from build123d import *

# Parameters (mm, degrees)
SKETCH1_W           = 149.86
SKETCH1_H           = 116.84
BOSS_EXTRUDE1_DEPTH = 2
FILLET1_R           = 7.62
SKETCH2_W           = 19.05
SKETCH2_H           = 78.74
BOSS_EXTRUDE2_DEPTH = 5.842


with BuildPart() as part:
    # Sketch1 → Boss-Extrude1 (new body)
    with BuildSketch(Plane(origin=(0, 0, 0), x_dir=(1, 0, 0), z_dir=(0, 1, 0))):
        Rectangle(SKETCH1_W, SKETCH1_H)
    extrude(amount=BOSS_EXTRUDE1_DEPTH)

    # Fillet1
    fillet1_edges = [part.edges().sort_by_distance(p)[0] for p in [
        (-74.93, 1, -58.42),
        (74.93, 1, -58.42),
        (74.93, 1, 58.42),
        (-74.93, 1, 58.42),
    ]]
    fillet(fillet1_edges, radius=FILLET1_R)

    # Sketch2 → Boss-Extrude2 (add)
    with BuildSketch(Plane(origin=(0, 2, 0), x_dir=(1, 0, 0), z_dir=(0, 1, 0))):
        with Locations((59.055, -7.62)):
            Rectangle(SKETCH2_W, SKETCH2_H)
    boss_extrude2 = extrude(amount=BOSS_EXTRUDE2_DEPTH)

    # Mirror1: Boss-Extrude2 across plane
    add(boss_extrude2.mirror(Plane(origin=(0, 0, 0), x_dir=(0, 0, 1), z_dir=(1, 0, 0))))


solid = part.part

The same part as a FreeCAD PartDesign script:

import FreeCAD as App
import Part
import Sketcher
Q = App.Units.Quantity


def edges_at(feature, points):
    """Names of the edges that pass closest to the given points."""
    edges = feature.Shape.Edges
    near = lambda p: min(range(len(edges)), key=lambda i: edges[i].distToShape(Part.Vertex(*p))[0])
    return sorted({f"Edge{near(p) + 1}" for p in points})

doc = App.newDocument("Part")
params = doc.addObject("Spreadsheet::Sheet", "Params")
for row, (alias, value) in enumerate([
    ("sketch1_width", "5.9 in"),
    ("sketch1_height", "4.6 in"),
    ("pad1_length", "2 mm"),
    ("fillet_radius", "0.3 in"),
    ("sketch2_height", "3.1 in"),
    ("sketch2_width", "0.75 in"),
    ("pad2_length", "0.23 in"),
], start=1):
    params.set(f"A{row}", alias)
    params.set(f"B{row}", "=" + value)
    params.setAlias(f"B{row}", alias)

body = doc.addObject("PartDesign::Body", "Body")

# Sketch on XZ plane
sketch1 = body.newObject("Sketcher::SketchObject", "Sketch")
sketch1.AttachmentSupport = (doc.getObject("XZ_Plane"), [""])
sketch1.MapMode = "FlatFace"
sketch1.addGeometry(Part.LineSegment(App.Vector(-75, -58, 0), App.Vector(-75, 58, 0)), False)
sketch1.addGeometry(Part.LineSegment(App.Vector(-75, 58, 0), App.Vector(75, 58, 0)), False)
sketch1.addGeometry(Part.LineSegment(App.Vector(75, 58, 0), App.Vector(75, -58, 0)), False)
sketch1.addGeometry(Part.LineSegment(App.Vector(75, -58, 0), App.Vector(-75, -58, 0)), False)
sketch1.addConstraint(Sketcher.Constraint("Coincident", 0, 2, 1, 1))
sketch1.addConstraint(Sketcher.Constraint("Coincident", 1, 2, 2, 1))
sketch1.addConstraint(Sketcher.Constraint("Coincident", 2, 2, 3, 1))
sketch1.addConstraint(Sketcher.Constraint("Coincident", 3, 2, 0, 1))
sketch1.addConstraint(Sketcher.Constraint("Vertical", 0))
sketch1.addConstraint(Sketcher.Constraint("Horizontal", 1))
sketch1.addConstraint(Sketcher.Constraint("Vertical", 2))
sketch1.addConstraint(Sketcher.Constraint("Horizontal", 3))
sketch1.addConstraint(Sketcher.Constraint("Symmetric", 0, 2, 2, 2, -1, 1))
sketch1.addConstraint(Sketcher.Constraint("DistanceX", 1, 1, 1, 2, Q("5.9 in")))
sketch1.addConstraint(Sketcher.Constraint("DistanceY", 0, 1, 0, 2, Q("4.6 in")))
sketch1.setExpression("Constraints[9]", "Params.sketch1_width")
sketch1.setExpression("Constraints[10]", "Params.sketch1_height")
pad1 = body.newObject("PartDesign::Pad", "Pad")
pad1.Profile = sketch1
pad1.setExpression("Length", "Params.pad1_length")
pad1.Reversed = True
doc.recompute()

fillet = body.newObject("PartDesign::Fillet", "Fillet")
fillet.Base = (pad1, edges_at(pad1, [
    (-74.93, 1, -58.42),
    (74.93, 1, -58.42),
    (74.93, 1, 58.42),
    (-74.93, 1, 58.42),
]))
fillet.setExpression("Radius", "Params.fillet_radius")

# Sketch on XZ plane
sketch2 = body.newObject("Sketcher::SketchObject", "Sketch001")
sketch2.AttachmentSupport = (doc.getObject("XZ_Plane"), [""])
sketch2.MapMode = "FlatFace"
sketch2.AttachmentOffset = App.Placement(App.Vector(0, 0, -2), App.Rotation())
sketch2.addGeometry(Part.LineSegment(App.Vector(50, -32, 0), App.Vector(50, 47, 0)), False)
sketch2.addGeometry(Part.LineSegment(App.Vector(50, 47, 0), App.Vector(69, 47, 0)), False)
sketch2.addGeometry(Part.LineSegment(App.Vector(69, 47, 0), App.Vector(69, -32, 0)), False)
sketch2.addGeometry(Part.LineSegment(App.Vector(69, -32, 0), App.Vector(50, -32, 0)), False)
sketch2.addConstraint(Sketcher.Constraint("Coincident", 0, 2, 1, 1))
sketch2.addConstraint(Sketcher.Constraint("Coincident", 1, 2, 2, 1))
sketch2.addConstraint(Sketcher.Constraint("Coincident", 2, 2, 3, 1))
sketch2.addConstraint(Sketcher.Constraint("Coincident", 3, 2, 0, 1))
sketch2.addConstraint(Sketcher.Constraint("Vertical", 0))
sketch2.addConstraint(Sketcher.Constraint("Horizontal", 1))
sketch2.addConstraint(Sketcher.Constraint("Vertical", 2))
sketch2.addConstraint(Sketcher.Constraint("Horizontal", 3))
sketch2.addConstraint(Sketcher.Constraint("DistanceY", 0, 1, 0, 2, Q("3.1 in")))
sketch2.addConstraint(Sketcher.Constraint("DistanceX", 1, 1, 1, 2, Q("0.75 in")))
sketch2.addConstraint(Sketcher.Constraint("DistanceX", -1, 1, 1, 2, Q("2.7 in")))
sketch2.addConstraint(Sketcher.Constraint("DistanceY", -1, 1, 0, 2, Q("1.85 in")))
sketch2.setExpression("Constraints[8]", "Params.sketch2_height")
sketch2.setExpression("Constraints[9]", "Params.sketch2_width")
pad2 = body.newObject("PartDesign::Pad", "Pad001")
pad2.Profile = sketch2
pad2.setExpression("Length", "Params.pad2_length")
pad2.Reversed = True
doc.recompute()

mirrored = body.newObject("PartDesign::Mirrored", "Mirrored")
mirrored.Originals = [pad2]
mirrored.MirrorPlane = (doc.getObject("YZ_Plane"), [""])
body.Tip = mirrored

doc.recompute()
